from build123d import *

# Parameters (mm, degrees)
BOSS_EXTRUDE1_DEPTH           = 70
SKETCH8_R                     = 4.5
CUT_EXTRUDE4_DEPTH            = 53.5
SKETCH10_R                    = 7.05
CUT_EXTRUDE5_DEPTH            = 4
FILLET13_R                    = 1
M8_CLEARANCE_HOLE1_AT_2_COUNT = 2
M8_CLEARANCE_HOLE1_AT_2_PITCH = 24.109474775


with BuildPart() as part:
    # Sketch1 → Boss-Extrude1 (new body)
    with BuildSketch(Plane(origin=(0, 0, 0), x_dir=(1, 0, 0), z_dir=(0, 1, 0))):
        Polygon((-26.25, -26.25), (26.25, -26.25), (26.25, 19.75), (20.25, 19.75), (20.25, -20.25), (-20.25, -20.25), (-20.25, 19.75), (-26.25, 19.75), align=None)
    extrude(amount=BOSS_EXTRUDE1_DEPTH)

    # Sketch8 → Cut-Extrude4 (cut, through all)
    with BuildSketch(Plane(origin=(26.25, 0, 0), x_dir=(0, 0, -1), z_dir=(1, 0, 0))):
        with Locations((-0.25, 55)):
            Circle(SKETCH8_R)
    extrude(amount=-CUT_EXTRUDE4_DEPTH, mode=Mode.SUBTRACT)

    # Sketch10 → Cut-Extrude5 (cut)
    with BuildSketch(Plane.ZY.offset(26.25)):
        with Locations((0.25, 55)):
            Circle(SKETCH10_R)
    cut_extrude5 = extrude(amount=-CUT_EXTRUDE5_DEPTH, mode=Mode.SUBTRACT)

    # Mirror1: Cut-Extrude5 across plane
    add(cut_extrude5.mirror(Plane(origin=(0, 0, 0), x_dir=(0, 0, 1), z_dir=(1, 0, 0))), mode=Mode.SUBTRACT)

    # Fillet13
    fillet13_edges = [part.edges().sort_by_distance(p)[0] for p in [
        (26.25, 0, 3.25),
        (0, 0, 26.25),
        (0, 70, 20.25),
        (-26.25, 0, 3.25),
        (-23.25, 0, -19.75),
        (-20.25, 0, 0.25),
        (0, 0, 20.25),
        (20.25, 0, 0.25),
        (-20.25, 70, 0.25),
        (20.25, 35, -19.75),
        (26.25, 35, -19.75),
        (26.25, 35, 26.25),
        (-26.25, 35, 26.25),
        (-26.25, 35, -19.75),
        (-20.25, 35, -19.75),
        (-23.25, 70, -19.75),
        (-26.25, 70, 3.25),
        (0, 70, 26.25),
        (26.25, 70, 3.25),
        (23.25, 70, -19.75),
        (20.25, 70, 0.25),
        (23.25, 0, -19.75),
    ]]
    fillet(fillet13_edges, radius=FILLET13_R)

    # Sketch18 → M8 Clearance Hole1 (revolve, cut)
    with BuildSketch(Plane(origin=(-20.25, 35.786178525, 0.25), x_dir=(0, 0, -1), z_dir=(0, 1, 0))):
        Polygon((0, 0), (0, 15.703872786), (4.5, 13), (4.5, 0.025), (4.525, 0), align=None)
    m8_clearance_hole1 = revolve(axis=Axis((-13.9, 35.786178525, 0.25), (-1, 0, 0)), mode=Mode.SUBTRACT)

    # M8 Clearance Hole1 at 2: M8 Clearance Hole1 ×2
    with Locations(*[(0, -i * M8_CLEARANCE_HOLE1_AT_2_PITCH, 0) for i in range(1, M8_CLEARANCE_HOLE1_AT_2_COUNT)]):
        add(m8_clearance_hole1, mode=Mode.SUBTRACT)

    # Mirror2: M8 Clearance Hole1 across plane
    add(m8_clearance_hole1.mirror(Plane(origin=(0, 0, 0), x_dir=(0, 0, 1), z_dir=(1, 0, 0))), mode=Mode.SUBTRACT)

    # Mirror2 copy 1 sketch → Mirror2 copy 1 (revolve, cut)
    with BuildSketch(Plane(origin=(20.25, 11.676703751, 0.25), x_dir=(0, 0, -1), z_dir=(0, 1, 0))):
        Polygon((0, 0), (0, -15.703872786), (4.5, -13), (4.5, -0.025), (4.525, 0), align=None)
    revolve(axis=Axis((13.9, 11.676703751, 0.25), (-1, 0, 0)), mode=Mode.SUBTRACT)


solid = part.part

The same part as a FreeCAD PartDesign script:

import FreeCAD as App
import Part
import Sketcher
from FreeCAD import Vector
Q = App.Units.Quantity


def edges_at(feature, points):
    """Names of the edges that pass closest to the given points."""
    edges = feature.Shape.Edges
    near = lambda p: min(range(len(edges)), key=lambda i: edges[i].distToShape(Part.Vertex(*p))[0])
    return sorted({f"Edge{near(p) + 1}" for p in points})


def add_polygon(sketch, points):
    """Adds a closed chain of lines whose ends are joined by coincident constraints."""
    first, n = sketch.GeometryCount, len(points)
    for a, b in zip(points, points[1:] + points[:1]):
        sketch.addGeometry(Part.LineSegment(App.Vector(*a, 0), App.Vector(*b, 0)), False)
    for i in range(n):
        sketch.addConstraint(Sketcher.Constraint("Coincident", first + i, 2, first + (i + 1) % n, 1))

doc = App.newDocument("Part")
body = doc.addObject("PartDesign::Body", "Body")

# Sketch on XZ plane
sketch1 = doc.addObject("Sketcher::SketchObject", "Sketch")
body.addObject(sketch1)
sketch1.AttachmentSupport = (doc.XZ_Plane, [""])
sketch1.MapMode = "FlatFace"
add_polygon(sketch1, [(-26, 26), (26, 26), (26, -20), (20, -20), (20, 20), (-20, 20), (-20, -20), (-26, -20)])  # lines 0-7
sketch1.addConstraint([
    Sketcher.Constraint("Horizontal", 0),
    Sketcher.Constraint("Vertical", 1),
    Sketcher.Constraint("Horizontal", 2),
    Sketcher.Constraint("Vertical", 3),
    Sketcher.Constraint("Horizontal", 4),
    Sketcher.Constraint("Vertical", 5),
    Sketcher.Constraint("Horizontal", 6),
    Sketcher.Constraint("Vertical", 7),
    Sketcher.Constraint("Symmetric", 2, 2, 5, 2, -2),
    Sketcher.Constraint("Equal", 2, 6),
    Sketcher.Constraint("DistanceX", 2, 2, 2, 1, Q("6 mm")),
    Sketcher.Constraint("DistanceY", 1, 2, 1, 1, Q("46 mm")),
    Sketcher.Constraint("DistanceY", 3, 1, 3, 2, Q("40 mm")),
    Sketcher.Constraint("DistanceX", 0, 1, 0, 2, Q("52.5 mm")),
    Sketcher.Constraint("DistanceY", -1, 1, 0, 2, Q("26.25 mm")),
])
pad1 = doc.addObject("PartDesign::Pad", "Pad")
body.addObject(pad1)
pad1.Profile = sketch1
pad1.Length = 70
pad1.Reversed = True

# Sketch on YZ plane
sketch2 = doc.addObject("Sketcher::SketchObject", "Sketch001")
body.addObject(sketch2)
sketch2.AttachmentSupport = (doc.YZ_Plane, [""])
sketch2.MapMode = "FlatFace"
sketch2.AttachmentOffset = App.Placement(Vector(0, 0, 26.25), App.Rotation())
sketch2.addGeometry(Part.Circle(Vector(55, 0.2, 0), Vector(0, 0, 1), 4.5), False)
sketch2.addConstraint([
    Sketcher.Constraint("Diameter", 0, Q("9 mm")),
    Sketcher.Constraint("DistanceX", -1, 1, 0, 3, Q("55 mm")),
    Sketcher.Constraint("DistanceY", -1, 1, 0, 3, Q("0.25 mm")),
])
pocket1 = doc.addObject("PartDesign::Pocket", "Pocket")
body.addObject(pocket1)
pocket1.Profile = sketch2
pocket1.Type = "ThroughAll"

# Sketch on YZ plane
sketch3 = doc.addObject("Sketcher::SketchObject", "Sketch002")
body.addObject(sketch3)
sketch3.AttachmentSupport = (doc.YZ_Plane, [""])
sketch3.MapMode = "FlatFace"
sketch3.AttachmentOffset = App.Placement(Vector(0, 0, -26.25), App.Rotation())
sketch3.addGeometry(Part.Circle(Vector(55, 0, 0), Vector(0, 0, 1), 7), False)
sketch3.addConstraint([
    Sketcher.Constraint("Diameter", 0, Q("14.1 mm")),
    Sketcher.Constraint("DistanceX", -1, 1, 0, 3, Q("55 mm")),
    Sketcher.Constraint("DistanceY", -1, 1, 0, 3, Q("0.25 mm")),
])
pocket2 = doc.addObject("PartDesign::Pocket", "Pocket001")
body.addObject(pocket2)
pocket2.Profile = sketch3
pocket2.Length = 4
pocket2.Reversed = True
doc.recompute()

mirrored = doc.addObject("PartDesign::Mirrored", "Mirrored")
body.addObject(mirrored)
mirrored.Originals = [pocket2]
mirrored.MirrorPlane = (doc.YZ_Plane, [""])
body.Tip = mirrored
doc.recompute()

fillet = doc.addObject("PartDesign::Fillet", "Fillet")
body.addObject(fillet)
fillet.Base = (mirrored, edges_at(mirrored, [
    (26.25, 0, 3.25),
    (0, 0, 26.25),
    (0, 70, 20.25),
    (-26.25, 0, 3.25),
    (-23.25, 0, -19.75),
    (-20.25, 0, 0.25),
    (0, 0, 20.25),
    (20.25, 0, 0.25),
    (-20.25, 70, 0.25),
    (20.25, 35, -19.75),
    (26.25, 35, -19.75),
    (26.25, 35, 26.25),
    (-26.25, 35, 26.25),
    (-26.25, 35, -19.75),
    (-20.25, 35, -19.75),
    (-23.25, 70, -19.75),
    (-26.25, 70, 3.25),
    (0, 70, 26.25),
    (26.25, 70, 3.25),
    (23.25, 70, -19.75),
    (20.25, 70, 0.25),
    (23.25, 0, -19.75),
]))
fillet.Radius = 1

# Sketch on XZ plane
sketch4 = doc.addObject("Sketcher::SketchObject", "Sketch003")
body.addObject(sketch4)
sketch4.AttachmentSupport = (doc.XZ_Plane, [""])
sketch4.MapMode = "FlatFace"
sketch4.AttachmentOffset = App.Placement(Vector(0, 0, -35.786179), App.Rotation())
add_polygon(sketch4, [(-35.954, 0.25), (-20.25, 0.25), (-20.25, -4.275), (-20.275, -4.25), (-33.25, -4.25)])  # lines 0-4
sketch4.addGeometry(Part.LineSegment(Vector(-20.25, 0.25, 0), Vector(-35.954, 0.25, 0)), True)  # axis
sketch4.addConstraint([
    Sketcher.Constraint("Horizontal", 0),
    Sketcher.Constraint("Vertical", 1),
    Sketcher.Constraint("Horizontal", 3),
    Sketcher.Constraint("Horizontal", 5),
    Sketcher.Constraint("Coincident", 5, 1, 0, 2),
    Sketcher.Constraint("Equal", 0, 5),
    Sketcher.Constraint("Angle", 2, Q("135 deg")),
    Sketcher.Constraint("Angle", 4, Q("121 deg")),
    Sketcher.Constraint("DistanceX", 3, 2, 1, 2, Q("13 mm")),
    Sketcher.Constraint("DistanceY", 2, 2, 0, 2, Q("4.5 mm")),
    Sketcher.Constraint("DistanceX", 3, 2, 3, 1, Q("12.975 mm")),
    Sketcher.Constraint("DistanceX", 0, 2, -1, 1, Q("20.25 mm")),
    Sketcher.Constraint("DistanceY", -1, 1, 0, 2, Q("0.25 mm")),
])
groove = doc.addObject("PartDesign::Groove", "Groove")
body.addObject(groove)
groove.Profile = sketch4
groove.ReferenceAxis = (sketch4, ["Axis0"])
groove.Angle = 360
doc.recompute()

linearpattern = doc.addObject("PartDesign::LinearPattern", "LinearPattern")
body.addObject(linearpattern)
linearpattern.Originals = [groove]
linearpattern.Direction = (doc.Y_Axis, [""])
linearpattern.Mode = "offset"
linearpattern.Offset = 24.109475
linearpattern.Occurrences = 2
linearpattern.Reversed = True
body.Tip = linearpattern
doc.recompute()

mirrored2 = doc.addObject("PartDesign::Mirrored", "Mirrored001")
body.addObject(mirrored2)
mirrored2.Originals = [groove]
mirrored2.MirrorPlane = (doc.YZ_Plane, [""])
body.Tip = mirrored2

# Sketch on XZ plane
sketch5 = doc.addObject("Sketcher::SketchObject", "Sketch004")
body.addObject(sketch5)
sketch5.AttachmentSupport = (doc.XZ_Plane, [""])
sketch5.MapMode = "FlatFace"
sketch5.AttachmentOffset = App.Placement(Vector(0, 0, -11.676704), App.Rotation())
add_polygon(sketch5, [(20.25, 0.25), (35.954, 0.25), (33.25, -4.25), (20.275, -4.25), (20.25, -4.275)])  # lines 0-4
sketch5.addGeometry(Part.LineSegment(Vector(35.954, 0.25, 0), Vector(20.25, 0.25, 0)), True)  # axis
sketch5.addConstraint([
    Sketcher.Constraint("Horizontal", 0),
    Sketcher.Constraint("Horizontal", 2),
    Sketcher.Constraint("Vertical", 4),
    Sketcher.Constraint("Horizontal", 5),
    Sketcher.Constraint("Coincident", 5, 1, 0, 2),
    Sketcher.Constraint("Vertical", 3, 2, 5, 2),
    Sketcher.Constraint("Angle", 1, Q("-121 deg")),
    Sketcher.Constraint("Angle", 3, Q("-135 deg")),
    Sketcher.Constraint("DistanceX", 3, 2, 1, 2, Q("13 mm")),
    Sketcher.Constraint("DistanceY", 1, 2, 0, 2, Q("4.5 mm")),
    Sketcher.Constraint("DistanceX", 2, 2, 2, 1, Q("12.975 mm")),
    Sketcher.Constraint("DistanceY", -1, 1, 0, 2, Q("0.25 mm")),
    Sketcher.Constraint("DistanceX", -1, 1, 1, 2, Q("33.25 mm")),
])
groove2 = doc.addObject("PartDesign::Groove", "Groove001")
body.addObject(groove2)
groove2.Profile = sketch5
groove2.ReferenceAxis = (sketch5, ["Axis0"])
groove2.Angle = 360

doc.recompute()
